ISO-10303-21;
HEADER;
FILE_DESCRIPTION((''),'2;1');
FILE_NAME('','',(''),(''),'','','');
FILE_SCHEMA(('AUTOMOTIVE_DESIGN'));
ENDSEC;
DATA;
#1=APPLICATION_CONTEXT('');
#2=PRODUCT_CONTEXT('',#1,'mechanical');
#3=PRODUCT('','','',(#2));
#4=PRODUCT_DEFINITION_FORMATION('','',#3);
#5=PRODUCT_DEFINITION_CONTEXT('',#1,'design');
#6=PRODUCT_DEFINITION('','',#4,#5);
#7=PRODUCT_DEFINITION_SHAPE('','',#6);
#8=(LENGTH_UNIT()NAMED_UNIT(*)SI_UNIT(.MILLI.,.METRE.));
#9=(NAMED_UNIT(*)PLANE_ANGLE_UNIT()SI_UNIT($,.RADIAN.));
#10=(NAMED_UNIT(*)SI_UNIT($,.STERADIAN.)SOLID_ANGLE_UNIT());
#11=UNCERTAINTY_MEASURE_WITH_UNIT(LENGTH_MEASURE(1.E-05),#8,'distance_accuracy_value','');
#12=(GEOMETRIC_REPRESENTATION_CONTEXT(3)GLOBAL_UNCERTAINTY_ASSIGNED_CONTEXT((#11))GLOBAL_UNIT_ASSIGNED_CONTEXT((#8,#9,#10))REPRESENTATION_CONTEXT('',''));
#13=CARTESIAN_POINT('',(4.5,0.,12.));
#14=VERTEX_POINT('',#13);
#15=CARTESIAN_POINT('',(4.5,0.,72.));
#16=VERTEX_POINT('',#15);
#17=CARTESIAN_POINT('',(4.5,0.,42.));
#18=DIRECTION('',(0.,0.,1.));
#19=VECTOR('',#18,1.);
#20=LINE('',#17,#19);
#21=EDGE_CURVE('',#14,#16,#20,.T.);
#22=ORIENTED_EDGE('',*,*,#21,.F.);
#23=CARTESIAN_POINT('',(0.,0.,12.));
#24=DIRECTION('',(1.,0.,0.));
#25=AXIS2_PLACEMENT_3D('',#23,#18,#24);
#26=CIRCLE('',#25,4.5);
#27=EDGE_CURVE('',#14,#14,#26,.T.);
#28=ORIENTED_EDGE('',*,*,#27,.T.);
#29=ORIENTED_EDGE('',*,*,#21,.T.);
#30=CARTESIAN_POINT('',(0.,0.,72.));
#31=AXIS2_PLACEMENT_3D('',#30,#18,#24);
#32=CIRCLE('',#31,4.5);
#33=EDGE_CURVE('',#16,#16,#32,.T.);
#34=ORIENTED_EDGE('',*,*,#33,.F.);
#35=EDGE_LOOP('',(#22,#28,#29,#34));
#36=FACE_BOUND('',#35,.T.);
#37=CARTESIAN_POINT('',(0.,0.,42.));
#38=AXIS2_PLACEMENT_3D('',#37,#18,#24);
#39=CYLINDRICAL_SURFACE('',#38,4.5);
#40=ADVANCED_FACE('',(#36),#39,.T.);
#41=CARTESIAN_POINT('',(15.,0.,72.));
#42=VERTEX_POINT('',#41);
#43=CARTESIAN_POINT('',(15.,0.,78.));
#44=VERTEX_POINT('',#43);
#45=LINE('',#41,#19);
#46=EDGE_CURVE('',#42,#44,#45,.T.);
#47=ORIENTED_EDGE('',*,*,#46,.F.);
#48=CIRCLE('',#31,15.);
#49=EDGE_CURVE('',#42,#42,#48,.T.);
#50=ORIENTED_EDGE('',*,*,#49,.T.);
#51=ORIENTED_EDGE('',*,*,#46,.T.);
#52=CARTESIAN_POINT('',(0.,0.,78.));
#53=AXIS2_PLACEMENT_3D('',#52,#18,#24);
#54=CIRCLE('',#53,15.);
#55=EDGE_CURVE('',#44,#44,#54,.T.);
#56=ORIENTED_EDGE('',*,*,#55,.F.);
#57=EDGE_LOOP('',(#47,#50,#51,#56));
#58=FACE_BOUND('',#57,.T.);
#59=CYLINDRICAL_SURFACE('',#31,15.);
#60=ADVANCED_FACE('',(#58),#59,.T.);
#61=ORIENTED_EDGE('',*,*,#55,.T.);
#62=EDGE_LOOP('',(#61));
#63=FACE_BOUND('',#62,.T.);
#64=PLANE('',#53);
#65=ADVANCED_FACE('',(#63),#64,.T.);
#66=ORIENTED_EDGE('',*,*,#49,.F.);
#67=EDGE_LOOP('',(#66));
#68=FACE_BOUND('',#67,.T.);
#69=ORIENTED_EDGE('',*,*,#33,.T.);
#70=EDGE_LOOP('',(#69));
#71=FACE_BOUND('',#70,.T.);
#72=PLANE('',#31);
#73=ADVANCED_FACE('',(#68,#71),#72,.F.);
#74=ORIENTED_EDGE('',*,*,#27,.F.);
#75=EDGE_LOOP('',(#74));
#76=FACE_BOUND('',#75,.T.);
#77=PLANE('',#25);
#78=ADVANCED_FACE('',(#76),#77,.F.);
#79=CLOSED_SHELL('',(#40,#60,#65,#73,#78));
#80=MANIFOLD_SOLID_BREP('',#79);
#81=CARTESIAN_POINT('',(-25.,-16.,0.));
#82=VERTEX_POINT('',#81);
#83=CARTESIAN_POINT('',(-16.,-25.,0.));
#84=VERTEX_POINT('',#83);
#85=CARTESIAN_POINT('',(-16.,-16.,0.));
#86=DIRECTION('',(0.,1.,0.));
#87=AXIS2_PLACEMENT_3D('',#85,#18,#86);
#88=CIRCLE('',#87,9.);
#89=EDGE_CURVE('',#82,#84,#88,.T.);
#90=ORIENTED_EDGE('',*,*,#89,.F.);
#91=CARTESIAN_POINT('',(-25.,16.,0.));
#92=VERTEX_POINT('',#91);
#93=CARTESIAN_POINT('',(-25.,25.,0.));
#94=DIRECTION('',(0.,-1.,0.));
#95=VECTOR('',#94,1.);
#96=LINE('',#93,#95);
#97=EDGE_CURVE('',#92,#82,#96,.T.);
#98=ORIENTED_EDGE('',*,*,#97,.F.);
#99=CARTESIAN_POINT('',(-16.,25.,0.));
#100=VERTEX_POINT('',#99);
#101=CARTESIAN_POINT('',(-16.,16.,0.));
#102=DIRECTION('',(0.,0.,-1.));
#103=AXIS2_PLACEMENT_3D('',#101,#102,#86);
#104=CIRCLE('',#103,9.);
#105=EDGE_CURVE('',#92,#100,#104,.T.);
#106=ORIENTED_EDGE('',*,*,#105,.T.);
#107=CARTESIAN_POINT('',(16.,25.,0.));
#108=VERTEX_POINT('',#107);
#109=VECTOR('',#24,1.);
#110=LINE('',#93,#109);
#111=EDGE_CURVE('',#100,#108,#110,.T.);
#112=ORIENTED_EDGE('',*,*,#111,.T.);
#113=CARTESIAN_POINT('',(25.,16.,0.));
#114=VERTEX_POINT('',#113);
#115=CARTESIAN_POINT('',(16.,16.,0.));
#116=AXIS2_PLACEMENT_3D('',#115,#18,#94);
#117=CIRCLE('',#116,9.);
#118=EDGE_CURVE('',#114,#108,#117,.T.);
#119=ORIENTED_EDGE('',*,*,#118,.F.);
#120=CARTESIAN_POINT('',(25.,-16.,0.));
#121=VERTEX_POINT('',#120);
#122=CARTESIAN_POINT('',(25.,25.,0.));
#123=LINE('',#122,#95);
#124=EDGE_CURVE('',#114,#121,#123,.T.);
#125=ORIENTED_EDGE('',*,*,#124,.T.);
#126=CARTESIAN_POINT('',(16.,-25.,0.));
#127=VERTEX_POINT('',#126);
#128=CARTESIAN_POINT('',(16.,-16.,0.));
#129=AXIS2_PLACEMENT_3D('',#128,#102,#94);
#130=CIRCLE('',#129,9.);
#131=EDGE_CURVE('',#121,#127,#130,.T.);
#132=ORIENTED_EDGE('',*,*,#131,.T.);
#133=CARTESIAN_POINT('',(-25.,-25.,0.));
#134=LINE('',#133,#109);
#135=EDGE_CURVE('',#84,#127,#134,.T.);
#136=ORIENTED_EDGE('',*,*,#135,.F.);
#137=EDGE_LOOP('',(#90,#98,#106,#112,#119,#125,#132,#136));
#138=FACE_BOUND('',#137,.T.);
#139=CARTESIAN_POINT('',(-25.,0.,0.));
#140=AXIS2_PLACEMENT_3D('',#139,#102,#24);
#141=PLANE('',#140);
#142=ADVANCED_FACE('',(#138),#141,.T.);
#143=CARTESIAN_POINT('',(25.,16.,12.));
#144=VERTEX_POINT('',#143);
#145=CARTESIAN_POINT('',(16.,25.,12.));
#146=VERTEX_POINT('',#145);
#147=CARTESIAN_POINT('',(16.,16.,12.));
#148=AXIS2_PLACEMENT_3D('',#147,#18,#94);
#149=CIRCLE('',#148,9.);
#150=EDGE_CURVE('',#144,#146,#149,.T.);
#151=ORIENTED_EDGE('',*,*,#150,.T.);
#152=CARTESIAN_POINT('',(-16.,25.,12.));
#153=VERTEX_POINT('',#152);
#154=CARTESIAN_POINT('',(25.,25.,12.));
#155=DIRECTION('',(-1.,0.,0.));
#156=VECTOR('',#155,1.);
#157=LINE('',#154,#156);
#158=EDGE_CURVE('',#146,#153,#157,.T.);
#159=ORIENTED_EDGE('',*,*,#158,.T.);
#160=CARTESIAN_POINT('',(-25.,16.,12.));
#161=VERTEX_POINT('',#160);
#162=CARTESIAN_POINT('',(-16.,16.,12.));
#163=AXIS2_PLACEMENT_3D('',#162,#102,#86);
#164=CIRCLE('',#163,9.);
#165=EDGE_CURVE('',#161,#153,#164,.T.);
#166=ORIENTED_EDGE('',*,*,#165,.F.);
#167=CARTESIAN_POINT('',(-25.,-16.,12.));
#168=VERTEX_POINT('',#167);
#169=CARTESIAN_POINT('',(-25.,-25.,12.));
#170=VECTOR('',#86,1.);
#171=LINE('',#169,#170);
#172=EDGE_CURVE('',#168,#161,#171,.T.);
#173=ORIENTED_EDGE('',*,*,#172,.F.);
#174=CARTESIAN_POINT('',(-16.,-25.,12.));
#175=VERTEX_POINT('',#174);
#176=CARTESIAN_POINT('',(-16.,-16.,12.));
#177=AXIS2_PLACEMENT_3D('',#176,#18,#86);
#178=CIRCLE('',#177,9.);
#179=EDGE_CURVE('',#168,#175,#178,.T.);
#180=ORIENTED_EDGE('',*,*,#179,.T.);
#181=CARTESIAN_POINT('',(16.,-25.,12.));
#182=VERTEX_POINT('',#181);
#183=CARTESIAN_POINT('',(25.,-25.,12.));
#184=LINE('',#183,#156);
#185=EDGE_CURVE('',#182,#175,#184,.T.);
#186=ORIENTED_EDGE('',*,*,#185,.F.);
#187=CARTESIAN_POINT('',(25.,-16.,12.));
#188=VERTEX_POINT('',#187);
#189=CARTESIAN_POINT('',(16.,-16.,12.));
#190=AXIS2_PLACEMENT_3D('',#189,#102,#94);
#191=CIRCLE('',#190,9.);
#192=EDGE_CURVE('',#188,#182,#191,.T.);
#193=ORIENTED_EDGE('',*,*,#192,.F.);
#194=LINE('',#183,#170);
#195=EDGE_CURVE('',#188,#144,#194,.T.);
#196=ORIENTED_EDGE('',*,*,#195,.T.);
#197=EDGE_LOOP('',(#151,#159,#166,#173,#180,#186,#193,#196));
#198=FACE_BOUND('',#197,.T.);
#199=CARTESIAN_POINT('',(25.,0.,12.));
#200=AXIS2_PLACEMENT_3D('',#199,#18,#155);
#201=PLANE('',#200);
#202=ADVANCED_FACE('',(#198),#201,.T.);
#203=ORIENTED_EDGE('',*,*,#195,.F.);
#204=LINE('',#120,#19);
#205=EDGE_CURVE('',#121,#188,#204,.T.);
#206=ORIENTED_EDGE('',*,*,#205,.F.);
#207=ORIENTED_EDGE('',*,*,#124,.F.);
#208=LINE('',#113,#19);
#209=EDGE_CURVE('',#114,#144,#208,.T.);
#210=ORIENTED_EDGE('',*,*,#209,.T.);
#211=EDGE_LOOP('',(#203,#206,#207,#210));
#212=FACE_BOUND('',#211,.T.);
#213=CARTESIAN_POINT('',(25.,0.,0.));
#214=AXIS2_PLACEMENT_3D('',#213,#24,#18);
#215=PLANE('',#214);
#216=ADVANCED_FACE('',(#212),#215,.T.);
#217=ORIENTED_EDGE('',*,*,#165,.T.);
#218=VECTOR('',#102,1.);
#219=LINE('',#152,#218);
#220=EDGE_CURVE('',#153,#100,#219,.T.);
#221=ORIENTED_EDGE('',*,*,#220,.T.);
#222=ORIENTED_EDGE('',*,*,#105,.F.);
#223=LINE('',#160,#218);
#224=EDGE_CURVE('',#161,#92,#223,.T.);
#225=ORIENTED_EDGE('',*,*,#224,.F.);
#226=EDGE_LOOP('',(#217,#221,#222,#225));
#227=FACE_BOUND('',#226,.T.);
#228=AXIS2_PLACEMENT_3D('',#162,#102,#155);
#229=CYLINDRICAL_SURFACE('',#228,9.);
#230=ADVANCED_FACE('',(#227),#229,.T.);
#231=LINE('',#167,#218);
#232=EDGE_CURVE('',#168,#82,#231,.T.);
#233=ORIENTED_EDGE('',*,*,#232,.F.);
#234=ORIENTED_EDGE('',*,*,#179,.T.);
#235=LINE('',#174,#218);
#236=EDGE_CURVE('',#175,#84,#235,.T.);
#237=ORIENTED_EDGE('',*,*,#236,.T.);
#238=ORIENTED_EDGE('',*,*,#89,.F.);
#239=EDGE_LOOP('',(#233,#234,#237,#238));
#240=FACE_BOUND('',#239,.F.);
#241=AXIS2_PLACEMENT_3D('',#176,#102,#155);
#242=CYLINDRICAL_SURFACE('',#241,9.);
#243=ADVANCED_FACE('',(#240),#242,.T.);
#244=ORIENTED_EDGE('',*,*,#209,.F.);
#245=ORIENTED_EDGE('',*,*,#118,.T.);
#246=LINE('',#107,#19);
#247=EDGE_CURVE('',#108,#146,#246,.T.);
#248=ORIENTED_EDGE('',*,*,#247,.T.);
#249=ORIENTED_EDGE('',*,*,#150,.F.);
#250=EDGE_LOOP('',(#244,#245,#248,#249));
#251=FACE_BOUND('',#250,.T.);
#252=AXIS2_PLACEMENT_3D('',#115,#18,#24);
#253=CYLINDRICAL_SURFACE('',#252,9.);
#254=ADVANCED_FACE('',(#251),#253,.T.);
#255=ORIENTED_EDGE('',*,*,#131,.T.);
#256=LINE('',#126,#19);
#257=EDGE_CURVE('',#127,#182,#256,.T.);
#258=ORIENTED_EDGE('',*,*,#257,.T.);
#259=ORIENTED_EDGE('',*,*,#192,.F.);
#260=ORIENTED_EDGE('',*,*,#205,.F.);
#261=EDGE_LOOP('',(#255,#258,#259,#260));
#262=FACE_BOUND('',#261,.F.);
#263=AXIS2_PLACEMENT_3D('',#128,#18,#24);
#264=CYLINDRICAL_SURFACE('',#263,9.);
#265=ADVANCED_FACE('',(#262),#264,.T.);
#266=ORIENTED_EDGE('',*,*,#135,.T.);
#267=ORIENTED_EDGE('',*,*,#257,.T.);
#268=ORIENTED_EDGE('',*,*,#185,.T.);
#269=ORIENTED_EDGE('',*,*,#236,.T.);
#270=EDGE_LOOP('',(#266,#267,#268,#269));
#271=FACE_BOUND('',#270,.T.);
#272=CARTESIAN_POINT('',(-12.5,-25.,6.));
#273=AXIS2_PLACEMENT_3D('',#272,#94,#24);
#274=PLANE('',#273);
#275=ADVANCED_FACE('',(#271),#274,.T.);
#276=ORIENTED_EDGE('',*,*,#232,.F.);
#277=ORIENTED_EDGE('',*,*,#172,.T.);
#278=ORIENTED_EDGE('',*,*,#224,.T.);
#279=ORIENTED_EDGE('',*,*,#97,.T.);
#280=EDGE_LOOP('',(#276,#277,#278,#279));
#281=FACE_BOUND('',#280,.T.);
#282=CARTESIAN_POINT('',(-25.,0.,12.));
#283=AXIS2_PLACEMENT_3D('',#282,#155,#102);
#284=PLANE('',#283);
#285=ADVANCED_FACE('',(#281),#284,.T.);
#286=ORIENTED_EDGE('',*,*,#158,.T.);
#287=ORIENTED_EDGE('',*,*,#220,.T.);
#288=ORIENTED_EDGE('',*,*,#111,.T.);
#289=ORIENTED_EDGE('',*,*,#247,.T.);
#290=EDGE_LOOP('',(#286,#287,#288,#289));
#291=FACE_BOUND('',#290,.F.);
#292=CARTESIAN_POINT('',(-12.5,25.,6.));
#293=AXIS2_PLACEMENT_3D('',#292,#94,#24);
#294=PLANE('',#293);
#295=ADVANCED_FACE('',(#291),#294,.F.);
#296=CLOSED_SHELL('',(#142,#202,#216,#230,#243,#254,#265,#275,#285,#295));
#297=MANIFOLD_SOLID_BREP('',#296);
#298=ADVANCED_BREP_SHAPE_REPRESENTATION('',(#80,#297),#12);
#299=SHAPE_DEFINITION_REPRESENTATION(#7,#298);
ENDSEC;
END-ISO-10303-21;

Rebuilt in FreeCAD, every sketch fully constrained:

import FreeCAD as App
import Part
import Sketcher

V = App.Vector


def edges_at(feature, points):
    """Names of the edges that pass closest to the given points."""
    edges = feature.Shape.Edges
    near = lambda p: min(range(len(edges)), key=lambda i: edges[i].distToShape(Part.Vertex(*p))[0])
    return sorted({f"Edge{near(p) + 1}" for p in points})

doc = App.newDocument("Part")
body = doc.addObject("PartDesign::Body", "Body")

sketch1 = body.newObject("Sketcher::SketchObject", "Sketch")
sketch1.AttachmentSupport = (doc.getObject("XZ_Plane"), [""])
sketch1.MapMode = "FlatFace"
sketch1.addGeometry([
    Part.LineSegment(V(-25, 12, 0), V(-25, 0, 0)),
    Part.LineSegment(V(-25, 0, 0), V(25, 0, 0)),
    Part.LineSegment(V(25, 0, 0), V(25, 12, 0)),
    Part.LineSegment(V(25, 12, 0), V(-25, 12, 0)),
], False)
sketch1.addConstraint([
    Sketcher.Constraint("Coincident", 0, 2, 1, 1),
    Sketcher.Constraint("Coincident", 1, 2, 2, 1),
    Sketcher.Constraint("Coincident", 2, 2, 3, 1),
    Sketcher.Constraint("Coincident", 3, 2, 0, 1),
    Sketcher.Constraint("Vertical", 0),
    Sketcher.Constraint("Horizontal", 1),
    Sketcher.Constraint("Vertical", 2),
    Sketcher.Constraint("Horizontal", 3),
    Sketcher.Constraint("Symmetric", 0, 2, 1, 2, -1, 1),
    Sketcher.Constraint("DistanceX", 1, 1, 1, 2, 50.0),
    Sketcher.Constraint("DistanceY", 0, 2, 0, 1, 12.0),
])
pad1 = body.newObject("PartDesign::Pad", "Pad")
pad1.Profile = sketch1
pad1.Length = 50
pad1.Midplane = True
doc.recompute()

fillet = body.newObject("PartDesign::Fillet", "Fillet")
fillet.Base = (pad1, edges_at(pad1, [
    (-25, -25, 6),
    (25, -25, 6),
    (25, 25, 6),
    (-25, 25, 6),
]))
fillet.Radius = 9
body2 = doc.addObject("PartDesign::Body", "Body001")

sketch2 = body2.newObject("Sketcher::SketchObject", "Sketch001")
sketch2.AttachmentSupport = (doc.getObject("XZ_Plane001"), [""])
sketch2.MapMode = "FlatFace"
sketch2.addGeometry([
    Part.LineSegment(V(0, 12, 0), V(4.5, 12, 0)),
    Part.LineSegment(V(4.5, 12, 0), V(4.5, 72, 0)),
    Part.LineSegment(V(4.5, 72, 0), V(15, 72, 0)),
    Part.LineSegment(V(15, 72, 0), V(15, 78, 0)),
    Part.LineSegment(V(15, 78, 0), V(0, 78, 0)),
    Part.LineSegment(V(0, 78, 0), V(0, 12, 0)),
], False)
sketch2.addConstraint([
    Sketcher.Constraint("Coincident", 0, 2, 1, 1),
    Sketcher.Constraint("Coincident", 1, 2, 2, 1),
    Sketcher.Constraint("Coincident", 2, 2, 3, 1),
    Sketcher.Constraint("Coincident", 3, 2, 4, 1),
    Sketcher.Constraint("Coincident", 4, 2, 5, 1),
    Sketcher.Constraint("Coincident", 5, 2, 0, 1),
    Sketcher.Constraint("Horizontal", 0),
    Sketcher.Constraint("Vertical", 1),
    Sketcher.Constraint("Horizontal", 2),
    Sketcher.Constraint("Vertical", 3),
    Sketcher.Constraint("Horizontal", 4),
    Sketcher.Constraint("Vertical", 5),
    Sketcher.Constraint("PointOnObject", 4, 2, -2),
    Sketcher.Constraint("DistanceX", 4, 2, 4, 1, 15.0),
    Sketcher.Constraint("DistanceY", 1, 1, 1, 2, 60.0),
    Sketcher.Constraint("DistanceY", 3, 1, 3, 2, 6.0),
    Sketcher.Constraint("DistanceX", 0, 1, 0, 2, 4.5),
    Sketcher.Constraint("DistanceY", -1, 1, 0, 2, 12.0),
])
revolution = body2.newObject("PartDesign::Revolution", "Revolution")
revolution.Profile = sketch2
revolution.ReferenceAxis = (sketch2, ["V_Axis"])
revolution.Angle = 360

doc.recompute()
